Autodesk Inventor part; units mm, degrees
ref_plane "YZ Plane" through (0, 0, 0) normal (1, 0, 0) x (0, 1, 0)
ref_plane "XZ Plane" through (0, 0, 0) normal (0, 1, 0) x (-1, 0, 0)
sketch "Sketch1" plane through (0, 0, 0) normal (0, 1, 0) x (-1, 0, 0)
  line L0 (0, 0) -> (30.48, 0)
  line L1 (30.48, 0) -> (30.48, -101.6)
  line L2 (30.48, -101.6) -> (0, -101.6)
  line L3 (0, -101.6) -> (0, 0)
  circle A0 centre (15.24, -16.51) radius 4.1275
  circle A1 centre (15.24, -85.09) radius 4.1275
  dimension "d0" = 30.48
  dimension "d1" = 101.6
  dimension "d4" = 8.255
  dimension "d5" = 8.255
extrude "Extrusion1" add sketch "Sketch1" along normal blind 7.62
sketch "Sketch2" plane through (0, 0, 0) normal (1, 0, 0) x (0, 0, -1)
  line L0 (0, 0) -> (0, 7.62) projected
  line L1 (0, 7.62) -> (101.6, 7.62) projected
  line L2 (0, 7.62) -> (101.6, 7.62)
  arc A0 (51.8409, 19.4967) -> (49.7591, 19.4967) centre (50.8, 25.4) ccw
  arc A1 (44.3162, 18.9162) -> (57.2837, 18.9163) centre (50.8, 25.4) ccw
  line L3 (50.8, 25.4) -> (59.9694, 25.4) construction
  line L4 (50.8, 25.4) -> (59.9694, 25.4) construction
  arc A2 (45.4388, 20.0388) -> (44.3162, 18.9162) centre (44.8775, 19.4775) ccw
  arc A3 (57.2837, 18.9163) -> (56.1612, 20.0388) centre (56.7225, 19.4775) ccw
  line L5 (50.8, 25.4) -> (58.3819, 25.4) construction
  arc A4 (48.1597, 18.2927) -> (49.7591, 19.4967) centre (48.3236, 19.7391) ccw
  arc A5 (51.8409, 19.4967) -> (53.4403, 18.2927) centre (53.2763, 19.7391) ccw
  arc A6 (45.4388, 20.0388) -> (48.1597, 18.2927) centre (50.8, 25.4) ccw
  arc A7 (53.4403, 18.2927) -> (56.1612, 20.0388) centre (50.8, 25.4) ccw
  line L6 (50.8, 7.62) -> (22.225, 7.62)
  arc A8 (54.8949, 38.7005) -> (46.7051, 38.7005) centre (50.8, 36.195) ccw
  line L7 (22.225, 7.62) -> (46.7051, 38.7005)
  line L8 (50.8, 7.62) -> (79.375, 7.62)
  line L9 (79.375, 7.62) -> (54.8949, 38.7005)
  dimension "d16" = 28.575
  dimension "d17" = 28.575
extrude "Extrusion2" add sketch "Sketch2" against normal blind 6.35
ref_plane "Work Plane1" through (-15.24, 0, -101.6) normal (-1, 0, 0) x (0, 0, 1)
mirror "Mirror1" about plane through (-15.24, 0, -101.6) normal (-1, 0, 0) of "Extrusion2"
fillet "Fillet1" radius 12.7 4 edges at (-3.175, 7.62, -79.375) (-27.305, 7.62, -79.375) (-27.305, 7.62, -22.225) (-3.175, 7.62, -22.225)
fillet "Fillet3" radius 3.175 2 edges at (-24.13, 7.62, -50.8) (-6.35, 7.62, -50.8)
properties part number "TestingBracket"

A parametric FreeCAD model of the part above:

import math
import FreeCAD as App
import Part
import Sketcher

V = App.Vector
Q = App.Units.Quantity


def edges_at(feature, points):
    """Names of the edges that pass closest to the given points."""
    edges = feature.Shape.Edges
    near = lambda p: min(range(len(edges)), key=lambda i: edges[i].distToShape(Part.Vertex(*p))[0])
    return sorted({f"Edge{near(p) + 1}" for p in points})

doc = App.newDocument("Part")
body = doc.addObject("PartDesign::Body", "Body")

# Sketch on XZ plane
sketch1 = body.newObject("Sketcher::SketchObject", "Sketch")
sketch1.AttachmentSupport = (doc.getObject("XZ_Plane"), [""])
sketch1.MapMode = "FlatFace"
sketch1.addGeometry([
    Part.LineSegment(V(-30.48, 0, 0), V(0, 0, 0)),  # 0
    Part.LineSegment(V(0, 0, 0), V(0, -101.6, 0)),  # 1
    Part.LineSegment(V(0, -101.6, 0), V(-30.48, -101.6, 0)),  # 2
    Part.LineSegment(V(-30.48, -101.6, 0), V(-30.48, 0, 0)),  # 3
    Part.Circle(V(-15.24, -85.09, 0), V(0, 0, 1), 4.1275),  # 4
    Part.Circle(V(-15.24, -16.51, 0), V(0, 0, 1), 4.1275),  # 5
], False)
sketch1.addConstraint([
    Sketcher.Constraint("Coincident", 0, 2, 1, 1),
    Sketcher.Constraint("Coincident", 1, 2, 2, 1),
    Sketcher.Constraint("Coincident", 2, 2, 3, 1),
    Sketcher.Constraint("Coincident", 3, 2, 0, 1),
    Sketcher.Constraint("Horizontal", 0),
    Sketcher.Constraint("Vertical", 1),
    Sketcher.Constraint("Horizontal", 2),
    Sketcher.Constraint("Vertical", 3),
    Sketcher.Constraint("Coincident", 0, 2, -1, 1),
    Sketcher.Constraint("Equal", 4, 5),
    Sketcher.Constraint("Vertical", 4, 3, 5, 3),
    Sketcher.Constraint("DistanceY", 1, 2, 1, 1, Q("4 in")),
    Sketcher.Constraint("Diameter", 4, Q("0.325 in")),
    Sketcher.Constraint("DistanceX", 0, 1, 0, 2, Q("1.2 in")),
    Sketcher.Constraint("DistanceX", 4, 3, -1, 1, Q("0.6 in")),
    Sketcher.Constraint("DistanceY", 4, 3, 5, 3, Q("2.7 in")),
    Sketcher.Constraint("DistanceY", 4, 3, -1, 1, Q("3.35 in")),
])
pad1 = body.newObject("PartDesign::Pad", "Pad")
pad1.Profile = sketch1
pad1.Length = Q("0.3 in")
pad1.Reversed = True

# Sketch on YZ plane
sketch2 = body.newObject("Sketcher::SketchObject", "Sketch001")
sketch2.AttachmentSupport = (doc.getObject("YZ_Plane"), [""])
sketch2.MapMode = "FlatFace"
sketch2.addGeometry([
    Part.LineSegment(V(38.7005, -46.7051, 0), V(7.62, -22.225, 0)),  # 0
    Part.LineSegment(V(7.62, -22.225, 0), V(7.62, -79.375, 0)),  # 1
    Part.LineSegment(V(7.62, -79.375, 0), V(38.7005, -54.8949, 0)),  # 2
    Part.ArcOfCircle(Part.Circle(V(36.195, -50.8, 0), V(0, 0, 1), 4.800597), math.radians(-58.53926), math.radians(58.53926)),  # 3
    Part.ArcOfCircle(Part.Circle(V(25.4, -50.8, 0), V(0, 0, 1), 5.994366), math.radians(-170.000104), math.radians(170.000104)),  # 4
    Part.ArcOfCircle(Part.Circle(V(19.7391, -53.2763, 0), V(0, 0, 1), 1.455724), math.radians(99.585263), math.radians(186.468852)),  # 5
    Part.ArcOfCircle(Part.Circle(V(25.4, -50.8, 0), V(0, 0, 1), 7.581882), math.radians(-159.620407), math.radians(-135)),  # 6
    Part.ArcOfCircle(Part.Circle(V(19.4775, -56.7225, 0), V(0, 0, 1), 0.793657), math.radians(-135), math.radians(45)),  # 7
    Part.ArcOfCircle(Part.Circle(V(25.4, -50.8, 0), V(0, 0, 1), 9.169478), math.radians(135), math.radians(225)),  # 8
    Part.ArcOfCircle(Part.Circle(V(19.4775, -44.8775, 0), V(0, 0, 1), 0.793798), math.radians(-45), math.radians(135)),  # 9
    Part.ArcOfCircle(Part.Circle(V(25.4, -50.8, 0), V(0, 0, 1), 7.58188), math.radians(135), math.radians(159.620407)),  # 10
    Part.ArcOfCircle(Part.Circle(V(19.7391, -48.3236, 0), V(0, 0, 1), 1.455657), math.radians(173.535059), math.radians(260.415392)),  # 11
], False)
sketch2.addConstraint([
    Sketcher.Constraint("Coincident", 0, 2, 1, 1),
    Sketcher.Constraint("Coincident", 1, 2, 2, 1),
    Sketcher.Constraint("Coincident", 2, 2, 3, 1),
    Sketcher.Constraint("Coincident", 3, 2, 0, 1),
    Sketcher.Constraint("Coincident", 4, 1, 5, 1),
    Sketcher.Constraint("Coincident", 5, 2, 6, 1),
    Sketcher.Constraint("Tangent", 6, 2, 7, 2),
    Sketcher.Constraint("Tangent", 7, 1, 8, 2),
    Sketcher.Constraint("Tangent", 8, 1, 9, 2),
    Sketcher.Constraint("Tangent", 9, 1, 10, 1),
    Sketcher.Constraint("Coincident", 10, 2, 11, 1),
    Sketcher.Constraint("Coincident", 11, 2, 4, 2),
    Sketcher.Constraint("Vertical", 1),
    Sketcher.Constraint("Coincident", 6, 3, 4, 3),
    Sketcher.Constraint("Coincident", 8, 3, 4, 3),
    Sketcher.Constraint("Coincident", 10, 3, 4, 3),
    Sketcher.Constraint("Equal", 7, 9),
    Sketcher.Constraint("Equal", 5, 11),
    Sketcher.Constraint("Horizontal", 3, 3, 4, 3),
    Sketcher.Constraint("Vertical", 7, 3, 9, 3),
    Sketcher.Constraint("Vertical", 5, 3, 11, 3),
    Sketcher.Constraint("Vertical", 2, 2, 3, 2),
    Sketcher.Constraint("Vertical", 5, 2, 10, 2),
    Sketcher.Constraint("Equal", 0, 2),
    Sketcher.Constraint("DistanceY", 3, 3, -1, 1, Q("2 in")),
    Sketcher.Constraint("DistanceX", -1, 1, 4, 3, Q("1 in")),
    Sketcher.Constraint("Radius", 3, Q("0.189 in")),
    Sketcher.Constraint("Radius", 4, Q("0.236 in")),
    Sketcher.Constraint("Radius", 7, Q("0.031248 in")),
    Sketcher.Constraint("Radius", 8, Q("0.361 in")),
    Sketcher.Constraint("DistanceY", 4, 3, 0, 2, Q("1.125 in")),
    Sketcher.Constraint("DistanceX", -1, 1, 0, 2, Q("0.3 in")),
    Sketcher.Constraint("Radius", 5, Q("0.0573 in")),
    Sketcher.Constraint("DistanceX", -1, 1, 3, 3, Q("1.425 in")),
    Sketcher.Constraint("DistanceY", 5, 3, 11, 3, Q("0.195 in")),
    Sketcher.Constraint("DistanceX", 7, 3, 5, 3, Q("0.0103 in")),
    Sketcher.Constraint("DistanceY", 5, 3, 4, 1, Q("0.0565 in")),
    Sketcher.Constraint("Distance", 0, Q("39.5635 mm")),
])
pad2 = body.newObject("PartDesign::Pad", "Pad001")
pad2.Profile = sketch2
pad2.Length = Q("0.25 in")
pad2.Reversed = True
doc.recompute()

datumplane = body.newObject("PartDesign::Plane", "DatumPlane")
datumplane.AttachmentSupport = (doc.getObject("YZ_Plane"), [""])
datumplane.MapMode = "FlatFace"
datumplane.AttachmentOffset = App.Placement(V(0, 0, -0.6 * 25.4), App.Rotation())
mirrored = body.newObject("PartDesign::Mirrored", "Mirrored")
mirrored.Originals = [pad2]
mirrored.MirrorPlane = (datumplane, [""])
body.Tip = mirrored
doc.recompute()

fillet = body.newObject("PartDesign::Fillet", "Fillet")
fillet.Base = (mirrored, edges_at(mirrored, [
    (-3.175, 7.62, -79.375),
    (-27.305, 7.62, -79.375),
    (-27.305, 7.62, -22.225),
    (-3.175, 7.62, -22.225),
]))
fillet.Radius = Q("0.5 in")
doc.recompute()

fillet2 = body.newObject("PartDesign::Fillet", "Fillet001")
fillet2.Base = (fillet, edges_at(fillet, [(-24.13, 7.62, -50.8), (-6.35, 7.62, -50.8)]))
fillet2.Radius = Q("0.125 in")

doc.recompute()
